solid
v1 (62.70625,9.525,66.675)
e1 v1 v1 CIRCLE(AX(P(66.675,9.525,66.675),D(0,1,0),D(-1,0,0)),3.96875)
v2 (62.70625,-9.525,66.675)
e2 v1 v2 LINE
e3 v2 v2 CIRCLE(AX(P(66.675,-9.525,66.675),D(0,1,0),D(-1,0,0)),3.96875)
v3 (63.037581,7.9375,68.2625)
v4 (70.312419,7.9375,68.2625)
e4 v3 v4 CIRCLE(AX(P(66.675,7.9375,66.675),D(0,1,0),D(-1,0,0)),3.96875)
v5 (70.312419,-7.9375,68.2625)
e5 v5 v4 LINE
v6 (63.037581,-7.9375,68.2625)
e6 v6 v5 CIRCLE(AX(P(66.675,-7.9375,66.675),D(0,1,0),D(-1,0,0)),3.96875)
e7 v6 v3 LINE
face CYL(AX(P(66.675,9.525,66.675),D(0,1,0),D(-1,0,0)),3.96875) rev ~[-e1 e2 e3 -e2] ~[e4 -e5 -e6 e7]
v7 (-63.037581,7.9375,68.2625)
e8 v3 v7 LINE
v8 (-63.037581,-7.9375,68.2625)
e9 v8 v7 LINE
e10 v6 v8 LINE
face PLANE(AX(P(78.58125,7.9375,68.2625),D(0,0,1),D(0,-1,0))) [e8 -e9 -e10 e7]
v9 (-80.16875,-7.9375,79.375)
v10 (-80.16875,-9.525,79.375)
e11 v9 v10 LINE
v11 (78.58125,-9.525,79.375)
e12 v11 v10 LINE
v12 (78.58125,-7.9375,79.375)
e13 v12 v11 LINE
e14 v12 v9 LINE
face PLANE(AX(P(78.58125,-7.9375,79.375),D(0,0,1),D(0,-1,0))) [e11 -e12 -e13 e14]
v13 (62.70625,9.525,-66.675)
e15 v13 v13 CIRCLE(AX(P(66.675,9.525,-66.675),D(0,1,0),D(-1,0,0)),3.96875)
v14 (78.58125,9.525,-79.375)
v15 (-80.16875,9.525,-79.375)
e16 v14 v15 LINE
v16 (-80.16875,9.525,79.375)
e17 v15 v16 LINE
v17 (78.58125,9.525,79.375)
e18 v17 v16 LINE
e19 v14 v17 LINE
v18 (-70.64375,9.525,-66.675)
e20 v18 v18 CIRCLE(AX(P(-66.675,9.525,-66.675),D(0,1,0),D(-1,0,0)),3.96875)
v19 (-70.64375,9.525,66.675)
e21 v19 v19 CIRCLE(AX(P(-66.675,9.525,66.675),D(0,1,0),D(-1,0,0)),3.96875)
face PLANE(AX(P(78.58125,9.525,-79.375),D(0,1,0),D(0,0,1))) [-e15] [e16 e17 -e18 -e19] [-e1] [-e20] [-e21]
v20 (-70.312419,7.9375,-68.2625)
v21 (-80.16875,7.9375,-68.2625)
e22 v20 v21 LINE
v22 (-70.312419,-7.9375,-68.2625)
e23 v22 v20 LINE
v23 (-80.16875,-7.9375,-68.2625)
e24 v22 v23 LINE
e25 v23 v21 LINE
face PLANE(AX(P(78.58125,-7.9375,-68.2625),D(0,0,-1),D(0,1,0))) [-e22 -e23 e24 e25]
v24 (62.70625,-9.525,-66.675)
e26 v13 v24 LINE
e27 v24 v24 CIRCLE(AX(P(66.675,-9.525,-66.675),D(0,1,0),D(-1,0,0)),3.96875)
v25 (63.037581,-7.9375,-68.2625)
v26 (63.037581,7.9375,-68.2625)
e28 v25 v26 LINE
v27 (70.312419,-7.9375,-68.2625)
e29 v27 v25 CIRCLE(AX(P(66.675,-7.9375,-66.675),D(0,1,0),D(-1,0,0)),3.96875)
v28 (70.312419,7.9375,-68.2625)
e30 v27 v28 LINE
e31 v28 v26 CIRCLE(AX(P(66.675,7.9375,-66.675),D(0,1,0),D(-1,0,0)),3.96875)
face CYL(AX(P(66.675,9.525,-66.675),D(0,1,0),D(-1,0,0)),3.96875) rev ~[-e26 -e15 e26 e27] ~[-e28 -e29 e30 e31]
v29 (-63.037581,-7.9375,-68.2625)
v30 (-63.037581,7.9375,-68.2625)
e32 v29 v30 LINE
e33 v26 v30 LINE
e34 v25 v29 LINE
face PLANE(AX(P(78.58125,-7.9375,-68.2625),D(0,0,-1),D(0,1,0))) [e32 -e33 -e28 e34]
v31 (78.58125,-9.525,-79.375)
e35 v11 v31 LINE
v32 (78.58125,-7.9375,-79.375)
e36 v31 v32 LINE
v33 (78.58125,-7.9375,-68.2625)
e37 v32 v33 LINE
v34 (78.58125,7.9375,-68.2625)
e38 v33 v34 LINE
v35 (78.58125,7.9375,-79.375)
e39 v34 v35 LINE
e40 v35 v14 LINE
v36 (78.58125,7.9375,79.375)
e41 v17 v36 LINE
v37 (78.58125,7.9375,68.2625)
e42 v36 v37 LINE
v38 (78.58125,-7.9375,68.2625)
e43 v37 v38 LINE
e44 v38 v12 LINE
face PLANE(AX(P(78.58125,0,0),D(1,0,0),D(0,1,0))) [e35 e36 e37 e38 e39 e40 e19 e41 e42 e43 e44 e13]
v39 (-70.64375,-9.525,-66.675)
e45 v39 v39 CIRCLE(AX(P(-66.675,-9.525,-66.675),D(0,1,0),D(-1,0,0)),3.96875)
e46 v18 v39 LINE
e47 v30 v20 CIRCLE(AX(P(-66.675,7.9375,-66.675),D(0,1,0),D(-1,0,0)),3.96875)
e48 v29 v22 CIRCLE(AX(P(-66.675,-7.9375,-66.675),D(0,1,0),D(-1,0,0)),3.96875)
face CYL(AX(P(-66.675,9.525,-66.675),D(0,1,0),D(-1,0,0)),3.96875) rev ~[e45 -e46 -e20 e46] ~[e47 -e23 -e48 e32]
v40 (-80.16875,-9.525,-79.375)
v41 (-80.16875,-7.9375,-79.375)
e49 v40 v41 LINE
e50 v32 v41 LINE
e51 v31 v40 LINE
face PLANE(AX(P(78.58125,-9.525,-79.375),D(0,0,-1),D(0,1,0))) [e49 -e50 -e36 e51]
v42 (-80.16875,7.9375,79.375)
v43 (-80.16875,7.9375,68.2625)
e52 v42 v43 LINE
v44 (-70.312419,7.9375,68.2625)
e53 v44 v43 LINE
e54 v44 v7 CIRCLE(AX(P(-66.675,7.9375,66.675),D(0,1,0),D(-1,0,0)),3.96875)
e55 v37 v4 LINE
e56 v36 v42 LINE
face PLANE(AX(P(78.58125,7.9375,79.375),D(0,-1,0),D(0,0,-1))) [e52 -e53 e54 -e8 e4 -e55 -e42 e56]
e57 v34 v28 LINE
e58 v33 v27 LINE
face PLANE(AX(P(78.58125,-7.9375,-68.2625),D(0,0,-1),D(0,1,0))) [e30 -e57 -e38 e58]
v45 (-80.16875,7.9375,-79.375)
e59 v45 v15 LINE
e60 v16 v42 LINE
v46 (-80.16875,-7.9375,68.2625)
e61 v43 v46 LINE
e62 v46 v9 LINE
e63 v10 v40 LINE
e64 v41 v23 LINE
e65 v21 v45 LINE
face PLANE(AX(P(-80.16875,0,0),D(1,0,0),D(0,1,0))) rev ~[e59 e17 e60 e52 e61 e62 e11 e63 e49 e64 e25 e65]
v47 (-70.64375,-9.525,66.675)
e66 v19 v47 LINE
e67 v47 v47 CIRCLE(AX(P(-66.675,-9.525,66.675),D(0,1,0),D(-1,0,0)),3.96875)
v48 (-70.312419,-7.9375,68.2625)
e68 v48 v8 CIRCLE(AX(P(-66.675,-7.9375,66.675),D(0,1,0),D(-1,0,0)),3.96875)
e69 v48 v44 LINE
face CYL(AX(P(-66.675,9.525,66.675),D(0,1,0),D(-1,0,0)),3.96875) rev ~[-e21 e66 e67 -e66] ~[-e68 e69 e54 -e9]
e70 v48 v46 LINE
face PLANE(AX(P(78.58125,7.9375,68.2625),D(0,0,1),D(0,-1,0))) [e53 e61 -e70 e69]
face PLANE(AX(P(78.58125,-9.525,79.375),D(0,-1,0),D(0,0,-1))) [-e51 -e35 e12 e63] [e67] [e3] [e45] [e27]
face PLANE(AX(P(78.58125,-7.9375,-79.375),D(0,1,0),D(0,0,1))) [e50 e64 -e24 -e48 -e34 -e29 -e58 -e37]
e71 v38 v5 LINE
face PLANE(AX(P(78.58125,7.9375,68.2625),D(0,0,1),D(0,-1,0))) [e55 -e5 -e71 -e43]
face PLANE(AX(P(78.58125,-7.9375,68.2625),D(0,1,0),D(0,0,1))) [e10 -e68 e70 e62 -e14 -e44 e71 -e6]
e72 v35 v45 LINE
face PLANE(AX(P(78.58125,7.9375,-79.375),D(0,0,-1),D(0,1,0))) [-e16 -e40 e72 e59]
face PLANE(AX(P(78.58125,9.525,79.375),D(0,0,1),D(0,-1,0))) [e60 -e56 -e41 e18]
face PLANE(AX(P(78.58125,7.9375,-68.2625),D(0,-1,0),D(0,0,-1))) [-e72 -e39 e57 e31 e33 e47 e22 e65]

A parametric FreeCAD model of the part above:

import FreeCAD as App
import Part
import Sketcher
from FreeCAD import Vector
Q = App.Units.Quantity

doc = App.newDocument("Part")
body = doc.addObject("PartDesign::Body", "Body")

# Sketch on YZ plane
sketch1 = body.newObject("Sketcher::SketchObject", "Sketch")
sketch1.AttachmentSupport = (doc.getObject("YZ_Plane"), [""])
sketch1.MapMode = "FlatFace"
sketch1.AttachmentOffset = App.Placement(Vector(0, 0, 3.09375 * 25.4), App.Rotation())
sketch1.addGeometry([
    Part.LineSegment(Vector(-7.9, 79.4, 0), Vector(-9.5, 79.4, 0)),  # 0
    Part.LineSegment(Vector(-9.5, 79.4, 0), Vector(-9.5, -79.4, 0)),  # 1
    Part.LineSegment(Vector(-9.5, -79.4, 0), Vector(-7.9, -79.4, 0)),  # 2
    Part.LineSegment(Vector(-7.9, -79.4, 0), Vector(-7.9, -68.3, 0)),  # 3
    Part.LineSegment(Vector(-7.9, -68.3, 0), Vector(7.9, -68.3, 0)),  # 4
    Part.LineSegment(Vector(7.9, -68.3, 0), Vector(7.9, -79.4, 0)),  # 5
    Part.LineSegment(Vector(7.9, -79.4, 0), Vector(9.5, -79.4, 0)),  # 6
    Part.LineSegment(Vector(9.5, -79.4, 0), Vector(9.5, 79.4, 0)),  # 7
    Part.LineSegment(Vector(9.5, 79.4, 0), Vector(7.9, 79.4, 0)),  # 8
    Part.LineSegment(Vector(7.9, 79.4, 0), Vector(7.9, 68.3, 0)),  # 9
    Part.LineSegment(Vector(7.9, 68.3, 0), Vector(-7.9, 68.3, 0)),  # 10
    Part.LineSegment(Vector(-7.9, 68.3, 0), Vector(-7.9, 79.4, 0)),  # 11
], False)
sketch1.addConstraint([
    Sketcher.Constraint("Coincident", 0, 2, 1, 1),
    Sketcher.Constraint("Coincident", 1, 2, 2, 1),
    Sketcher.Constraint("Coincident", 2, 2, 3, 1),
    Sketcher.Constraint("Coincident", 3, 2, 4, 1),
    Sketcher.Constraint("Coincident", 4, 2, 5, 1),
    Sketcher.Constraint("Coincident", 5, 2, 6, 1),
    Sketcher.Constraint("Coincident", 6, 2, 7, 1),
    Sketcher.Constraint("Coincident", 7, 2, 8, 1),
    Sketcher.Constraint("Coincident", 8, 2, 9, 1),
    Sketcher.Constraint("Coincident", 9, 2, 10, 1),
    Sketcher.Constraint("Coincident", 10, 2, 11, 1),
    Sketcher.Constraint("Coincident", 11, 2, 0, 1),
    Sketcher.Constraint("Horizontal", 0),
    Sketcher.Constraint("Vertical", 1),
    Sketcher.Constraint("Horizontal", 2),
    Sketcher.Constraint("Vertical", 3),
    Sketcher.Constraint("Horizontal", 4),
    Sketcher.Constraint("Vertical", 5),
    Sketcher.Constraint("Horizontal", 6),
    Sketcher.Constraint("Vertical", 7),
    Sketcher.Constraint("Horizontal", 8),
    Sketcher.Constraint("Vertical", 9),
    Sketcher.Constraint("Horizontal", 10),
    Sketcher.Constraint("Vertical", 11),
    Sketcher.Constraint("Symmetric", 0, 2, 6, 2, -1, 1),
    Sketcher.Constraint("Symmetric", 2, 2, 8, 2, -1, 1),
    Sketcher.Constraint("Symmetric", 4, 2, 10, 2, -1, 1),
    Sketcher.Constraint("Symmetric", 2, 2, 5, 2, -2),
    Sketcher.Constraint("DistanceY", 1, 2, 1, 1, Q("6.25 in")),
    Sketcher.Constraint("DistanceX", 0, 2, 0, 1, Q("0.0625 in")),
    Sketcher.Constraint("DistanceX", 4, 1, 4, 2, Q("0.625 in")),
    Sketcher.Constraint("DistanceY", 3, 1, 3, 2, Q("0.4375 in")),
])
pad1 = body.newObject("PartDesign::Pad", "Pad")
pad1.Profile = sketch1
pad1.Length = Q("6.25 in")
pad1.Reversed = True

# Sketch on XZ plane
sketch2 = body.newObject("Sketcher::SketchObject", "Sketch001")
sketch2.AttachmentSupport = (doc.getObject("XZ_Plane"), [""])
sketch2.MapMode = "FlatFace"
sketch2.AttachmentOffset = App.Placement(Vector(0, 0, -0.375 * 25.4), App.Rotation())
sketch2.addGeometry([
    Part.Circle(Vector(-66.7, 66.7, 0), Vector(0, 0, 1), 4),
    Part.Circle(Vector(66.7, 66.7, 0), Vector(0, 0, 1), 4),
    Part.Circle(Vector(66.7, -66.7, 0), Vector(0, 0, 1), 4),
    Part.Circle(Vector(-66.7, -66.7, 0), Vector(0, 0, 1), 4),
], False)
sketch2.addConstraint([
    Sketcher.Constraint("Equal", 0, 1),
    Sketcher.Constraint("Equal", 1, 2),
    Sketcher.Constraint("Equal", 2, 3),
    Sketcher.Constraint("Symmetric", 0, 3, 2, 3, -1, 1),
    Sketcher.Constraint("Symmetric", 1, 3, 3, 3, -1, 1),
    Sketcher.Constraint("Symmetric", 0, 3, 1, 3, -2),
    Sketcher.Constraint("Diameter", 0, Q("0.3125 in")),
    Sketcher.Constraint("DistanceX", 0, 3, 1, 3, Q("5.25 in")),
    Sketcher.Constraint("DistanceY", 2, 3, 1, 3, Q("5.25 in")),
])
pocket1 = body.newObject("PartDesign::Pocket", "Pocket")
pocket1.Profile = sketch2
pocket1.Type = "ThroughAll"
pocket1.Reversed = True

doc.recompute()
